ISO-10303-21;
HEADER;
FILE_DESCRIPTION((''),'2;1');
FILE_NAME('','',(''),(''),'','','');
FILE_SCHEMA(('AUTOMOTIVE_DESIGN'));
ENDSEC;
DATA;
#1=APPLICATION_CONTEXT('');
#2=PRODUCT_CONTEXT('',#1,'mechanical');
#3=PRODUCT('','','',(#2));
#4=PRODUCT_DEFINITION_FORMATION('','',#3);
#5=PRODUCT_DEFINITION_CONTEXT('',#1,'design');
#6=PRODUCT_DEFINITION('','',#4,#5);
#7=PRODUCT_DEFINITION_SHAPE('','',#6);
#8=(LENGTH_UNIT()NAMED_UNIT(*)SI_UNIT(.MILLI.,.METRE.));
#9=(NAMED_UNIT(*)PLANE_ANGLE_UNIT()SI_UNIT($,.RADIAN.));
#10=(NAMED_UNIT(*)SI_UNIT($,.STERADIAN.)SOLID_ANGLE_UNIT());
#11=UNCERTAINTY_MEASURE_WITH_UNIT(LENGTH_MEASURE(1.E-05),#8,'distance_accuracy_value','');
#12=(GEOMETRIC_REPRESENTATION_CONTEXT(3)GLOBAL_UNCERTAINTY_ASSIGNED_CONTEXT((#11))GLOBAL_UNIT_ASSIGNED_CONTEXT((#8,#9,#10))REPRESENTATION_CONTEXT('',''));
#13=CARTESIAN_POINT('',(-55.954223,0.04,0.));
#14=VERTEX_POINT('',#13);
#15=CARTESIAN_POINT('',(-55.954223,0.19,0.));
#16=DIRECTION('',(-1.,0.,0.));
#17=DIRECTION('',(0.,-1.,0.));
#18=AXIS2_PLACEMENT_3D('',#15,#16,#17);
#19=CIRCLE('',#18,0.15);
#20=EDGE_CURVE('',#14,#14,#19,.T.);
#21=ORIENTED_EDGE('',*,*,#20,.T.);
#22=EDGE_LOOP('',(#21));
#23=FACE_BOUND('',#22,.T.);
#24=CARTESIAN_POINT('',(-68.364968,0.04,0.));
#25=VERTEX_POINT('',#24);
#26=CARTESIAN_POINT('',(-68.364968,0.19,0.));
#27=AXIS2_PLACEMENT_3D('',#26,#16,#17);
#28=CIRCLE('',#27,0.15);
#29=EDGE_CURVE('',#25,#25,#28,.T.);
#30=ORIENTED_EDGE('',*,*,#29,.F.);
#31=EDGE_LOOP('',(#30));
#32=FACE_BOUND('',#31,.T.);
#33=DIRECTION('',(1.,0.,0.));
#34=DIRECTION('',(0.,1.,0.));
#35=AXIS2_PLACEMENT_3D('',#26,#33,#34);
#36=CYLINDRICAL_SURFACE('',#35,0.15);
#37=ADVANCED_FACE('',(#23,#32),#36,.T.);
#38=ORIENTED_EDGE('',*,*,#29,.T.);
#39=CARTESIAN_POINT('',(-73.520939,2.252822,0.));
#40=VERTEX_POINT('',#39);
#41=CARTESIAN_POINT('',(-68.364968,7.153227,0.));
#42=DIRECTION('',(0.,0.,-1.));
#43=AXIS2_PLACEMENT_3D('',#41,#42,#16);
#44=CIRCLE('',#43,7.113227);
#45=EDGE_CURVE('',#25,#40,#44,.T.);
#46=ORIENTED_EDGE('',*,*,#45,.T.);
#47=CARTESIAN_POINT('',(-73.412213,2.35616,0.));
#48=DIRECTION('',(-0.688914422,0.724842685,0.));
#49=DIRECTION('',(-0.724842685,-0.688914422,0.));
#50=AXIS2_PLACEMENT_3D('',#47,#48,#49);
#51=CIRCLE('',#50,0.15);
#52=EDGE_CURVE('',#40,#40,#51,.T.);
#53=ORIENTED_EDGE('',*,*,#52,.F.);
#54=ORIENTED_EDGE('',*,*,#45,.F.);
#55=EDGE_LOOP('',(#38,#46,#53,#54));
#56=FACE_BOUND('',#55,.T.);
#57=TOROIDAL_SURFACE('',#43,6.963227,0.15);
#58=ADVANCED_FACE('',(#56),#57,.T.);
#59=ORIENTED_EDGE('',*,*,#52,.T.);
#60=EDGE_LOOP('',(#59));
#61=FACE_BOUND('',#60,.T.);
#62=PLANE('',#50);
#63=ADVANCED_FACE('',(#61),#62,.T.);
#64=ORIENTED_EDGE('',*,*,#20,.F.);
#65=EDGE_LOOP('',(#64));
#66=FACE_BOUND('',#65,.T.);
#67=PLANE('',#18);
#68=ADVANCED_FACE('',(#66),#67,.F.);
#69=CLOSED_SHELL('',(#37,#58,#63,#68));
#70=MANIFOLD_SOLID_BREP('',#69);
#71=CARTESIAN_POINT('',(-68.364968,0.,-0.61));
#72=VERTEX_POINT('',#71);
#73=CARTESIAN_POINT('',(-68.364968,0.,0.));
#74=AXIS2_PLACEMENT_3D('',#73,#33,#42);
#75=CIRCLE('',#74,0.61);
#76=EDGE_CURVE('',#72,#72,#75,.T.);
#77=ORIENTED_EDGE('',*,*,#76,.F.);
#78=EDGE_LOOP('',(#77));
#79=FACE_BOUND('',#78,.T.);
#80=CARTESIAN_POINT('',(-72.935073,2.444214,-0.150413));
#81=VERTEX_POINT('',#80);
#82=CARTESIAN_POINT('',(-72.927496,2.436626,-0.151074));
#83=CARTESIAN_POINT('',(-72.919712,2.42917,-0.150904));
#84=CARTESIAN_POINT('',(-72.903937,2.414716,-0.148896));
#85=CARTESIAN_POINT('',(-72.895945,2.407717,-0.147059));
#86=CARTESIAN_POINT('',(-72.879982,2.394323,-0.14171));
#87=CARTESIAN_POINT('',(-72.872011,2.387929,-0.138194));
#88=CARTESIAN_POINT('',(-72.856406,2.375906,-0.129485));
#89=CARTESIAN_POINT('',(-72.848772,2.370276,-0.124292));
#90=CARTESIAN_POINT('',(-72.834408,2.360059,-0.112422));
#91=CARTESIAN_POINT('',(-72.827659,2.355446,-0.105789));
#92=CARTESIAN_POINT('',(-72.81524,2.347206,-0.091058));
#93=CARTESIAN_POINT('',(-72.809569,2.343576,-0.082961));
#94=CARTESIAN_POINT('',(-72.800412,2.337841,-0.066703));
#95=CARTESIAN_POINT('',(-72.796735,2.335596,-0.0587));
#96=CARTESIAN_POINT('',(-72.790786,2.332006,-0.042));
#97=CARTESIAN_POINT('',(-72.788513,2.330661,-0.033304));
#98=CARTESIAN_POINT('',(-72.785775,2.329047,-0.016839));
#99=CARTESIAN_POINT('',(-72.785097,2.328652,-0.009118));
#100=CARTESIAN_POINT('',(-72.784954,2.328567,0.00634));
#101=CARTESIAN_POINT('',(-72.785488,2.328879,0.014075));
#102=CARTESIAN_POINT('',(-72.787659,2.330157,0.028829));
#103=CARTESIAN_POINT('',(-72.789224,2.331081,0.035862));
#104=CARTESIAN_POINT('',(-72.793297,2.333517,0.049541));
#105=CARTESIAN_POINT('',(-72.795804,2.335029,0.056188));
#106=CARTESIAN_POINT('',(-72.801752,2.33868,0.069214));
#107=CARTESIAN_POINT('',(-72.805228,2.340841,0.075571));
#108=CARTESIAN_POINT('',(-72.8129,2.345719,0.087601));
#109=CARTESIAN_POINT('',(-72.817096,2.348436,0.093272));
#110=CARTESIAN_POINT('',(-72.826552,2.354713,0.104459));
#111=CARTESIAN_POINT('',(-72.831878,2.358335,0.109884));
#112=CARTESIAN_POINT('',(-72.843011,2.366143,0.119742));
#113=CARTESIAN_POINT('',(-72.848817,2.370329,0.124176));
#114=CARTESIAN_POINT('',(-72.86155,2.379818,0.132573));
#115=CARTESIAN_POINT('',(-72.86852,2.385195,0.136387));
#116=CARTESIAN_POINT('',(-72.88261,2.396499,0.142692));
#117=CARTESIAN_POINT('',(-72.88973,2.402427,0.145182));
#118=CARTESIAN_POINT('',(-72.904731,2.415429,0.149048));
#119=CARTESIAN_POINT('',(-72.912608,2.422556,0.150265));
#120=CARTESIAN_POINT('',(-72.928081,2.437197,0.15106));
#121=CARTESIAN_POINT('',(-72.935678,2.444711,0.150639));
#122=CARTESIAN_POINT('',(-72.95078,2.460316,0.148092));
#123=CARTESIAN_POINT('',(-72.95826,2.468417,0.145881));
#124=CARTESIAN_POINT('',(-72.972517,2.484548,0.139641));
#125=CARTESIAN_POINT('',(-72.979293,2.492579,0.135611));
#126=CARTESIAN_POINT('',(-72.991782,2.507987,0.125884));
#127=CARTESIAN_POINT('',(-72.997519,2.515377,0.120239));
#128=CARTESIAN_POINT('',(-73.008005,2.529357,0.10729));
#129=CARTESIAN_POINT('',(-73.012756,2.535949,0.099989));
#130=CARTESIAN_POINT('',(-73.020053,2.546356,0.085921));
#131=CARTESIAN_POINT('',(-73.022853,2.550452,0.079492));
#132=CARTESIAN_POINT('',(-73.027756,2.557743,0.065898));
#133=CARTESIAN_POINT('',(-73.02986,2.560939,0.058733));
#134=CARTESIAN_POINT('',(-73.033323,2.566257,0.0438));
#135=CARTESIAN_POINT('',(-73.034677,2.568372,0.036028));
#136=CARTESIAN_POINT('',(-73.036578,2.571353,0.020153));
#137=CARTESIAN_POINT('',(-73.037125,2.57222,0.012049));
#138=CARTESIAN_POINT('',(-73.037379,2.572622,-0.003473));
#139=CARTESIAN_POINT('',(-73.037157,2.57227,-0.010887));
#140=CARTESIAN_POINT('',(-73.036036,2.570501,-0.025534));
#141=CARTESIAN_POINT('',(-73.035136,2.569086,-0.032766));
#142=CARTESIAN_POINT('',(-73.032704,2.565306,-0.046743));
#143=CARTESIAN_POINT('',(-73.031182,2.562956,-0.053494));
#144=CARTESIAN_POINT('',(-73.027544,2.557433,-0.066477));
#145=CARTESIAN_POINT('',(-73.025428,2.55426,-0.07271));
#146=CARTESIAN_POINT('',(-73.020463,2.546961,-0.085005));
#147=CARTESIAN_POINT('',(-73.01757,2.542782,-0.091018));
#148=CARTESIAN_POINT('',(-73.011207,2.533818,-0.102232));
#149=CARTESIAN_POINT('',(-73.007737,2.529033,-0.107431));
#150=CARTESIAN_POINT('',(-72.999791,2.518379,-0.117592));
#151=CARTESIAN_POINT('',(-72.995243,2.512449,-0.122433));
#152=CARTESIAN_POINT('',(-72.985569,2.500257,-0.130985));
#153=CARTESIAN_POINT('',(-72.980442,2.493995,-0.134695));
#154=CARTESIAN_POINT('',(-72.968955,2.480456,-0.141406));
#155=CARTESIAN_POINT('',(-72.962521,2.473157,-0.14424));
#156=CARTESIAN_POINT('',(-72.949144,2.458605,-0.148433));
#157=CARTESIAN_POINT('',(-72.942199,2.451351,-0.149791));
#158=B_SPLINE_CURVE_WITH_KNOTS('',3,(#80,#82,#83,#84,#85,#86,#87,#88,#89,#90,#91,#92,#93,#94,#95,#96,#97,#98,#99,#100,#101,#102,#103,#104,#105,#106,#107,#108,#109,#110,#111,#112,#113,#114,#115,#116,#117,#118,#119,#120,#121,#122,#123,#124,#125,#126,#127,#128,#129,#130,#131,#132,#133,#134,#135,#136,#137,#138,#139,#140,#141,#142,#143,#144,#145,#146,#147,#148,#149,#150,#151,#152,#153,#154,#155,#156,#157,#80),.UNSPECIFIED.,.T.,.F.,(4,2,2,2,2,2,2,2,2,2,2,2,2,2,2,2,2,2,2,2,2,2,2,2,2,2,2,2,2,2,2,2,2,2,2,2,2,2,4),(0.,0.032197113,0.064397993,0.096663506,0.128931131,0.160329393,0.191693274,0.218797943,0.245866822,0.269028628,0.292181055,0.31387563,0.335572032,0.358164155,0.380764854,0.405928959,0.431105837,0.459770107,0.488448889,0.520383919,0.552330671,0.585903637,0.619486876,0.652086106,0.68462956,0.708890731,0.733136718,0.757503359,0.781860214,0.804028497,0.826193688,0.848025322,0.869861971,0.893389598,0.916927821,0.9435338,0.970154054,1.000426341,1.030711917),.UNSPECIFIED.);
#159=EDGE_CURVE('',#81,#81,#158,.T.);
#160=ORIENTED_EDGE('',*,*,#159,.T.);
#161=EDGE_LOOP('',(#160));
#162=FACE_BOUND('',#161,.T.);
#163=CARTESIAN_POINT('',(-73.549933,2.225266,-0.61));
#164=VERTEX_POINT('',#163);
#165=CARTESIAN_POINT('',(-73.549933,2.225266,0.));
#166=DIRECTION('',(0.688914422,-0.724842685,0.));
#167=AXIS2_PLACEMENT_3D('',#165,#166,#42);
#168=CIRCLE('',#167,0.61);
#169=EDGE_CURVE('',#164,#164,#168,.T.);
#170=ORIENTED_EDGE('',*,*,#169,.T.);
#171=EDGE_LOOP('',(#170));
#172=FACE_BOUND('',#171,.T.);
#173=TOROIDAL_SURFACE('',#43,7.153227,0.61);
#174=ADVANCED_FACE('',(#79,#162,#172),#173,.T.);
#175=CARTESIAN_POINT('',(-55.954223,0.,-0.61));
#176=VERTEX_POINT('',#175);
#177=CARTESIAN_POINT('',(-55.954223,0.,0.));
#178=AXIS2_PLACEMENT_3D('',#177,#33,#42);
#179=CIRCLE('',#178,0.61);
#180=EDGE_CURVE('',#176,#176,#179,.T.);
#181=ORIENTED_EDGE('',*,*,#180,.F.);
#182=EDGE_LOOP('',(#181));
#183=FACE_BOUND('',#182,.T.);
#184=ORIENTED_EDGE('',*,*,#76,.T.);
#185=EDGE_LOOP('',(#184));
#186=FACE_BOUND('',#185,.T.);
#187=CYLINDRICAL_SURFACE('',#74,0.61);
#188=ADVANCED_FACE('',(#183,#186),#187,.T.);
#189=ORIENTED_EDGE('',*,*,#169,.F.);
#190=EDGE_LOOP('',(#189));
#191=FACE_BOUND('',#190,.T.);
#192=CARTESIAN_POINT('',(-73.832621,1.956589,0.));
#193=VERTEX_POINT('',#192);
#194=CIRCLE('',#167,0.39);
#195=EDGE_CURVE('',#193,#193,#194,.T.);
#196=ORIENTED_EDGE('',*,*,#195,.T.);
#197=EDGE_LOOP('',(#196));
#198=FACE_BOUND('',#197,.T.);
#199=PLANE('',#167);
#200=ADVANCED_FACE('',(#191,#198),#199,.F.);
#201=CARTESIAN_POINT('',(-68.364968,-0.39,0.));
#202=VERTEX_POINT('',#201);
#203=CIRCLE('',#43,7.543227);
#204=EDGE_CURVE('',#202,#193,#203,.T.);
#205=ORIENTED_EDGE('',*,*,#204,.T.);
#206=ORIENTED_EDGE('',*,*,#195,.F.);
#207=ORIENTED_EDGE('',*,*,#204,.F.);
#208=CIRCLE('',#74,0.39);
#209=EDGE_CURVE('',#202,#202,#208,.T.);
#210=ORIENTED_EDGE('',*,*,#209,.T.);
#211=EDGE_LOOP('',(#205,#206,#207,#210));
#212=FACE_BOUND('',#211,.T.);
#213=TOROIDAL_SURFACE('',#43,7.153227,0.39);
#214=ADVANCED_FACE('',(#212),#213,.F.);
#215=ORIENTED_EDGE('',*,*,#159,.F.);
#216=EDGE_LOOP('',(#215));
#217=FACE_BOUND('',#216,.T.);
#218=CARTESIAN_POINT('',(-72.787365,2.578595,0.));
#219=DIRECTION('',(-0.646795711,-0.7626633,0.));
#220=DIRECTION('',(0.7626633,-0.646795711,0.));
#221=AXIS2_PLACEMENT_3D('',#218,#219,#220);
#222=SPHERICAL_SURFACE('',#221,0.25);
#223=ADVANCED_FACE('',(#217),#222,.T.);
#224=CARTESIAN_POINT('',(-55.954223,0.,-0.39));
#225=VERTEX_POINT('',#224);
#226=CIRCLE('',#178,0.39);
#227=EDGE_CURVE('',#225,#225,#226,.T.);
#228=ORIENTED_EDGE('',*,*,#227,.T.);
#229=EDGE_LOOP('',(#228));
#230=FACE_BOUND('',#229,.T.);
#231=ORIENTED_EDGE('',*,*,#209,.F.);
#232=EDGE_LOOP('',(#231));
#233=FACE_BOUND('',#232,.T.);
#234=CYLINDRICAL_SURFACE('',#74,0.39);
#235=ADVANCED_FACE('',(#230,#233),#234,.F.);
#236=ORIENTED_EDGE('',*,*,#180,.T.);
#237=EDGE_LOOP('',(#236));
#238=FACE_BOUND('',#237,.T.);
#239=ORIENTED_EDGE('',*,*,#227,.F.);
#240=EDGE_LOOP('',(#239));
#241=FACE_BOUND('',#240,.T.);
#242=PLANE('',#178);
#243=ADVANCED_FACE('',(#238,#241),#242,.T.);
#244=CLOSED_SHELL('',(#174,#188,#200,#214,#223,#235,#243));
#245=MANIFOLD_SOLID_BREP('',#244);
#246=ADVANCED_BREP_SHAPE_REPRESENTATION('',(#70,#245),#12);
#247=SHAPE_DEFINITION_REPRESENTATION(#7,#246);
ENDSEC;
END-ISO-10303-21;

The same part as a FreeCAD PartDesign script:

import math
import FreeCAD as App
import Part
import Sketcher
from FreeCAD import Vector

doc = App.newDocument("Part")
body = doc.addObject("PartDesign::Body", "Body")

# Sketch on YZ plane
sketch1 = doc.addObject("Sketcher::SketchObject", "Sketch")
body.addObject(sketch1)
sketch1.AttachmentSupport = (doc.YZ_Plane, [""])
sketch1.MapMode = "FlatFace"
sketch1.AttachmentOffset = App.Placement(Vector(0, 0, -65.954223), App.Rotation())
sketch1.addGeometry([
    Part.Circle(Vector(0, 0, 0), Vector(0, 0, 1), 0.61),
    Part.Circle(Vector(0, 0, 0), Vector(0, 0, 1), 0.39),
], False)
sketch1.addConstraint([
    Sketcher.Constraint("Coincident", 0, 3, -1, 1),
    Sketcher.Constraint("Coincident", 1, 3, -1, 1),
    Sketcher.Constraint("Diameter", 0, 1.22),
    Sketcher.Constraint("Diameter", 1, 0.78),
])

# Sketch on XY plane
sketch2 = doc.addObject("Sketcher::SketchObject", "Sketch001")
body.addObject(sketch2)
sketch2.AttachmentSupport = (doc.XY_Plane, [""])
sketch2.MapMode = "FlatFace"
sketch2.addGeometry([
    Part.LineSegment(Vector(-65.954223, 0, 0), Vector(-68.364968, 0, 0)),
    Part.ArcOfCircle(Part.Circle(Vector(-68.364968, 7.153227, 0), Vector(0, 0, 1), 7.153227), math.radians(-136.455763), math.radians(-90)),
], False)
sketch2.addConstraint([
    Sketcher.Constraint("Tangent", 0, 2, 1, 2),
    Sketcher.Constraint("Horizontal", 0),
    Sketcher.Constraint("PointOnObject", 0, 1, -1),
    Sketcher.Constraint("Radius", 1, 7.153227),
    Sketcher.Constraint("DistanceX", 0, 2, 0, 1, 2.410745),
    Sketcher.Constraint("DistanceX", 1, 3, -1, 1, 68.364968),
    Sketcher.Constraint("DistanceY", 1, 1, 1, 3, 4.927962),
])
doc.recompute()

additivepipe = doc.addObject("PartDesign::AdditivePipe", "AdditivePipe")
body.addObject(additivepipe)
additivepipe.Profile = sketch1
additivepipe.Spine = (sketch2, ["Edge1", "Edge2"])

# Sketch on YZ plane
sketch3 = doc.addObject("Sketcher::SketchObject", "Sketch002")
body.addObject(sketch3)
sketch3.AttachmentSupport = (doc.YZ_Plane, [""])
sketch3.MapMode = "FlatFace"
sketch3.AttachmentOffset = App.Placement(Vector(0, 0, -65.954223), App.Rotation())
sketch3.addGeometry([
    Part.Circle(Vector(0, 0, 0), Vector(0, 0, 1), 0.61),
    Part.Circle(Vector(0, 0, 0), Vector(0, 0, 1), 0.39),
], False)
sketch3.addConstraint([
    Sketcher.Constraint("Coincident", 0, 3, -1, 1),
    Sketcher.Constraint("Coincident", 1, 3, -1, 1),
    Sketcher.Constraint("Diameter", 0, 1.22),
    Sketcher.Constraint("Diameter", 1, 0.78),
])
pad1 = doc.addObject("PartDesign::Pad", "Pad")
body.addObject(pad1)
pad1.Profile = sketch3
pad1.Length = 10

# Sketch on XY plane
sketch4 = doc.addObject("Sketcher::SketchObject", "Sketch003")
body.addObject(sketch4)
sketch4.AttachmentSupport = (doc.XY_Plane, [""])
sketch4.MapMode = "FlatFace"
sketch4.addGeometry([
    Part.LineSegment(Vector(-72.625666, 2.769261, 0), Vector(-72.949064, 2.387929, 0)),
    Part.ArcOfCircle(Part.Circle(Vector(-72.787365, 2.578595, 0), Vector(0, 0, 1), 0.25), math.radians(-130.300445), math.radians(49.699554)),
], False)
sketch4.addGeometry(Part.LineSegment(Vector(-72.949064, 2.387929, 0), Vector(-72.625666, 2.769261, 0)), True)  # axis
sketch4.addConstraint([
    Sketcher.Constraint("Coincident", 0, 1, 1, 2),
    Sketcher.Constraint("Coincident", 1, 1, 0, 2),
    Sketcher.Constraint("Coincident", 2, 1, 1, 1),
    Sketcher.Constraint("Coincident", 2, 2, 0, 1),
    Sketcher.Constraint("Radius", 1, 0.25),
    Sketcher.Constraint("DistanceX", 1, 3, 0, 1, 0.161699),
    Sketcher.Constraint("DistanceX", 1, 1, 1, 3, 0.161699),
    Sketcher.Constraint("DistanceY", -1, 1, 0, 1, 2.769261),
    Sketcher.Constraint("DistanceX", 1, 3, -1, 1, 72.787365),
])
revolution = doc.addObject("PartDesign::Revolution", "Revolution")
body.addObject(revolution)
revolution.Profile = sketch4
revolution.ReferenceAxis = (sketch4, ["Axis0"])
revolution.Angle = 360
body2 = doc.addObject("PartDesign::Body", "Body001")

# Sketch on an angled plane
sketch5 = doc.addObject("Sketcher::SketchObject", "Sketch004")
body2.addObject(sketch5)
sketch5.Placement = App.Placement(Vector(-36.018221, 37.896644, 0), App.Rotation(Vector(0.724842685, 0.688914422, 0), Vector(0, 0, -0.999999999), Vector(-0.688914422, 0.724842685, 0), "ZXY"))
sketch5.addGeometry(Part.Circle(Vector(-51.589113, 0, 0), Vector(0, 0, 1), 0.15), False)
sketch5.addConstraint([
    Sketcher.Constraint("PointOnObject", 0, 3, -1),
    Sketcher.Constraint("Diameter", 0, 0.3),
    Sketcher.Constraint("DistanceX", 0, 3, -1, 1, 51.589113),
])

# Sketch on XY plane
sketch6 = doc.addObject("Sketcher::SketchObject", "Sketch005")
body2.addObject(sketch6)
sketch6.AttachmentSupport = (doc.getObject("XY_Plane001"), [""])
sketch6.MapMode = "FlatFace"
sketch6.addGeometry([
    Part.LineSegment(Vector(-55.954223, 0.19, 0), Vector(-68.364968, 0.19, 0)),
    Part.ArcOfCircle(Part.Circle(Vector(-68.364968, 7.153227, 0), Vector(0, 0, 1), 6.963227), math.radians(-136.455763), math.radians(-90)),
], False)
sketch6.addConstraint([
    Sketcher.Constraint("Tangent", 0, 2, 1, 2),
    Sketcher.Constraint("Horizontal", 0),
    Sketcher.Constraint("DistanceY", -1, 1, 0, 1, 0.19),
    Sketcher.Constraint("Radius", 1, 6.963227),
    Sketcher.Constraint("DistanceX", 0, 2, 0, 1, 12.410745),
    Sketcher.Constraint("DistanceX", 1, 3, -1, 1, 68.364968),
    Sketcher.Constraint("DistanceY", -1, 1, 1, 1, 2.35616),
])
doc.recompute()

additivepipe2 = doc.addObject("PartDesign::AdditivePipe", "AdditivePipe001")
body2.addObject(additivepipe2)
additivepipe2.Profile = sketch5
additivepipe2.Spine = (sketch6, ["Edge1", "Edge2"])

doc.recompute()
